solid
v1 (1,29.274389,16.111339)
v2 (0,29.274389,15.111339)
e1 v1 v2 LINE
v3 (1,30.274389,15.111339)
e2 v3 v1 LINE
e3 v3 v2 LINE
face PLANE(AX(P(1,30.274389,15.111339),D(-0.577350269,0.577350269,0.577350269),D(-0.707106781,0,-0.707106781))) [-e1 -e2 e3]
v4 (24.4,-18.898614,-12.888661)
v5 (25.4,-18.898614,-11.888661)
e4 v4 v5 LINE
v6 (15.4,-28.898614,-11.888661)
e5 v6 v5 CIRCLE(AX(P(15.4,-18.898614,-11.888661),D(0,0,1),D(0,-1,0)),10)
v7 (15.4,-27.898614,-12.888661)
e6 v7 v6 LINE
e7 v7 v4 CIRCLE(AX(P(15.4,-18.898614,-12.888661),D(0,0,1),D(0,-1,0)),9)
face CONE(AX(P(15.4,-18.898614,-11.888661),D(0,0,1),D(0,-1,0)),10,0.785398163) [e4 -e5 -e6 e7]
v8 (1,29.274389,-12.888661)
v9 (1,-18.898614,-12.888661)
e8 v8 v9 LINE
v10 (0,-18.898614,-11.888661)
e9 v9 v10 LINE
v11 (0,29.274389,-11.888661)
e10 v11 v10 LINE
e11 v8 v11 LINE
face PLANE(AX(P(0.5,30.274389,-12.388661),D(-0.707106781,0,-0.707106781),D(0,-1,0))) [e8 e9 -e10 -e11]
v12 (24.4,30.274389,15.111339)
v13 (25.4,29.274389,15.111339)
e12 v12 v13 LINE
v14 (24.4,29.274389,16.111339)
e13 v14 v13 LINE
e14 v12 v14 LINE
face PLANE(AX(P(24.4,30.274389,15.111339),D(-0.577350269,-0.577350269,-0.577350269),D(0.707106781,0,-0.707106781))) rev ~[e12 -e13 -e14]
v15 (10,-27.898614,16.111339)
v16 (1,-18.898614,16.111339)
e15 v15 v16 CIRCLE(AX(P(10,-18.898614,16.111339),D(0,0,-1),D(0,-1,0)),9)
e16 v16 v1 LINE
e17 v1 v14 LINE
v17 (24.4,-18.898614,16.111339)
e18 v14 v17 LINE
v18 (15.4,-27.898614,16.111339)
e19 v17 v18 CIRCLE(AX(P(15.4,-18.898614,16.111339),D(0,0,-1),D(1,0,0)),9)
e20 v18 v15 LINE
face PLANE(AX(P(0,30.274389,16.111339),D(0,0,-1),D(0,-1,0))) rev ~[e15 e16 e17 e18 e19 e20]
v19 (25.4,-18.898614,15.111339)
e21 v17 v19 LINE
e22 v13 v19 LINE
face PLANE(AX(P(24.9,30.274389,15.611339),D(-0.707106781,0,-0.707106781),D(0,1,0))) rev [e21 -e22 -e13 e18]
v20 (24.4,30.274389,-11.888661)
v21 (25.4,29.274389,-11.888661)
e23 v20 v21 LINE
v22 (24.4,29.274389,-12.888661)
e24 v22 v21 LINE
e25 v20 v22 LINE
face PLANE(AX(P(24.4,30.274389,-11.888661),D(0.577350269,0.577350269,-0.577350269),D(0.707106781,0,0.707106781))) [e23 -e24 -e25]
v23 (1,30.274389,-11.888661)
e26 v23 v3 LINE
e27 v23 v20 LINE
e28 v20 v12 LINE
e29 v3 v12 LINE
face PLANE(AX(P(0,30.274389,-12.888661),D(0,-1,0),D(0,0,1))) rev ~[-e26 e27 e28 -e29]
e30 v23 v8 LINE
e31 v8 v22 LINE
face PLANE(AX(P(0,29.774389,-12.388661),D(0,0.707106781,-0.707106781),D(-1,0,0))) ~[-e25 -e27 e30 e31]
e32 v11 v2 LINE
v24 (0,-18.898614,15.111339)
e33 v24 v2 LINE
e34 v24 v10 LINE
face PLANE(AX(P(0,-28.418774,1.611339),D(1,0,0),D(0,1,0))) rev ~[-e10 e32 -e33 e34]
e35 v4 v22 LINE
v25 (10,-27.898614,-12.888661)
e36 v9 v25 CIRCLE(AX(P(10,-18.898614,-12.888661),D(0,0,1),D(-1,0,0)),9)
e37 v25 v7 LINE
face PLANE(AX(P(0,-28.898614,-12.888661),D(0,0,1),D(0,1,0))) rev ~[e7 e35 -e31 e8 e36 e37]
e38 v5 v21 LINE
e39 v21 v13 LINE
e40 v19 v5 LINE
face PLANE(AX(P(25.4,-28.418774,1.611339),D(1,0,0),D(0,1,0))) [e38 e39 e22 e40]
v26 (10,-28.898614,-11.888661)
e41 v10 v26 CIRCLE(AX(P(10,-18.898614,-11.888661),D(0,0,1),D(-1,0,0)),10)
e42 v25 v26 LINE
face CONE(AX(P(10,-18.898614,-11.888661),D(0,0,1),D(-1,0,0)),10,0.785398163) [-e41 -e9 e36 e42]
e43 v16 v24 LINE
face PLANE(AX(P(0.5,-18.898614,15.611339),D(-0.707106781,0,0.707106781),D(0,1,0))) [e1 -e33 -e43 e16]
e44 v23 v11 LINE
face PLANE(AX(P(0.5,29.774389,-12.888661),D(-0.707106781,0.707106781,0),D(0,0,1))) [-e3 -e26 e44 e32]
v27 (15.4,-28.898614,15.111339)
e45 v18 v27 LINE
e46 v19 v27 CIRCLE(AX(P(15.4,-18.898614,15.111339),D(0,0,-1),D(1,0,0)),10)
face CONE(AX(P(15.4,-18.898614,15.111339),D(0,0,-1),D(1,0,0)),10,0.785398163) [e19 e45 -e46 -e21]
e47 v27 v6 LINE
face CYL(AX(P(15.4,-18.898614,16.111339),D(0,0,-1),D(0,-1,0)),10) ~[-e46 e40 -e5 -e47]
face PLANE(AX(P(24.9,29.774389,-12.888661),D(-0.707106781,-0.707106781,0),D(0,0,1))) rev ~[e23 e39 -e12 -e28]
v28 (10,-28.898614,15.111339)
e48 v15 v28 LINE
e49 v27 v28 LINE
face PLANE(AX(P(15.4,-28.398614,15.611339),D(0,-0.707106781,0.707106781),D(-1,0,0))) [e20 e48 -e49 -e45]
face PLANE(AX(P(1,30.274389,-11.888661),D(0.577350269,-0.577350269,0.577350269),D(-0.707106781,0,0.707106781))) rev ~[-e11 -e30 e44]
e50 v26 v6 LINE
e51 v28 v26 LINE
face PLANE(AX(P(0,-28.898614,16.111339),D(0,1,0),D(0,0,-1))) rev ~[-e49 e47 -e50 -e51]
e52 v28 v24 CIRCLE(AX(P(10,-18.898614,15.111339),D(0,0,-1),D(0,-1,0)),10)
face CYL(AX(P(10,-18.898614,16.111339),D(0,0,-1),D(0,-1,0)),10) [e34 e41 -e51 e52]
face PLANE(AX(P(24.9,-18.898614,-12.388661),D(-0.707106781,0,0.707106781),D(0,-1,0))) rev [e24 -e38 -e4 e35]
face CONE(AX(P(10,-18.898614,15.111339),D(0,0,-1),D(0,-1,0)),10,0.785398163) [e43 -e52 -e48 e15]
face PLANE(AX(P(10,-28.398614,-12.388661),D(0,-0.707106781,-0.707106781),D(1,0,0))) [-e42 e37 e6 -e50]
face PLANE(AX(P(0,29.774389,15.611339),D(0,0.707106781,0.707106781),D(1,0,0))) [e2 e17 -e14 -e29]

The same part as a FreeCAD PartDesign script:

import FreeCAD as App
import Part
import Sketcher

V = App.Vector


def edges_at(feature, points):
    """Names of the edges that pass closest to the given points."""
    edges = feature.Shape.Edges
    near = lambda p: min(range(len(edges)), key=lambda i: edges[i].distToShape(Part.Vertex(*p))[0])
    return sorted({f"Edge{near(p) + 1}" for p in points})


def add_polygon(sketch, points):
    """Adds a closed chain of lines whose ends are joined by coincident constraints."""
    first, n = sketch.GeometryCount, len(points)
    for a, b in zip(points, points[1:] + points[:1]):
        sketch.addGeometry(Part.LineSegment(App.Vector(*a, 0), App.Vector(*b, 0)), False)
    for i in range(n):
        sketch.addConstraint(Sketcher.Constraint("Coincident", first + i, 2, first + (i + 1) % n, 1))

doc = App.newDocument("Part")
body = doc.addObject("PartDesign::Body", "Body")

sketch1 = body.newObject("Sketcher::SketchObject", "Sketch")
sketch1.AttachmentSupport = (doc.getObject("YZ_Plane"), [""])
sketch1.MapMode = "FlatFace"
add_polygon(sketch1, [(-29, 16), (-29, -13), (30, -13), (30, 16)])
sketch1.addConstraint(Sketcher.Constraint("Vertical", 0))
sketch1.addConstraint(Sketcher.Constraint("Horizontal", 1))
sketch1.addConstraint(Sketcher.Constraint("Vertical", 2))
sketch1.addConstraint(Sketcher.Constraint("Horizontal", 3))
sketch1.addConstraint(Sketcher.Constraint("DistanceY", 0, 2, 0, 1, 29.0))
sketch1.addConstraint(Sketcher.Constraint("DistanceX", 1, 1, 1, 2, 59.173003))
sketch1.addConstraint(Sketcher.Constraint("DistanceY", 0, 2, -1, 1, 12.888661))
sketch1.addConstraint(Sketcher.Constraint("DistanceX", -1, 1, 1, 2, 30.274389))
pad1 = body.newObject("PartDesign::Pad", "Pad")
pad1.Profile = sketch1
pad1.Length = 25.4
doc.recompute()

fillet = body.newObject("PartDesign::Fillet", "Fillet")
fillet.Base = (pad1, edges_at(pad1, [(25.4, -28.899, 1.611), (0, -28.899, 1.611)]))
fillet.Radius = 10
doc.recompute()

chamfer = body.newObject("PartDesign::Chamfer", "Chamfer")
chamfer.Base = (fillet, edges_at(fillet, [
    (25.4, 5.688, 16.111),
    (25.4, 5.688, -12.889),
    (12.7, 30.274, 16.111),
    (12.7, 30.274, -12.889),
    (25.4, 30.274, 1.611),
    (0, 30.274, 1.611),
]))
chamfer.Size = 1

doc.recompute()
